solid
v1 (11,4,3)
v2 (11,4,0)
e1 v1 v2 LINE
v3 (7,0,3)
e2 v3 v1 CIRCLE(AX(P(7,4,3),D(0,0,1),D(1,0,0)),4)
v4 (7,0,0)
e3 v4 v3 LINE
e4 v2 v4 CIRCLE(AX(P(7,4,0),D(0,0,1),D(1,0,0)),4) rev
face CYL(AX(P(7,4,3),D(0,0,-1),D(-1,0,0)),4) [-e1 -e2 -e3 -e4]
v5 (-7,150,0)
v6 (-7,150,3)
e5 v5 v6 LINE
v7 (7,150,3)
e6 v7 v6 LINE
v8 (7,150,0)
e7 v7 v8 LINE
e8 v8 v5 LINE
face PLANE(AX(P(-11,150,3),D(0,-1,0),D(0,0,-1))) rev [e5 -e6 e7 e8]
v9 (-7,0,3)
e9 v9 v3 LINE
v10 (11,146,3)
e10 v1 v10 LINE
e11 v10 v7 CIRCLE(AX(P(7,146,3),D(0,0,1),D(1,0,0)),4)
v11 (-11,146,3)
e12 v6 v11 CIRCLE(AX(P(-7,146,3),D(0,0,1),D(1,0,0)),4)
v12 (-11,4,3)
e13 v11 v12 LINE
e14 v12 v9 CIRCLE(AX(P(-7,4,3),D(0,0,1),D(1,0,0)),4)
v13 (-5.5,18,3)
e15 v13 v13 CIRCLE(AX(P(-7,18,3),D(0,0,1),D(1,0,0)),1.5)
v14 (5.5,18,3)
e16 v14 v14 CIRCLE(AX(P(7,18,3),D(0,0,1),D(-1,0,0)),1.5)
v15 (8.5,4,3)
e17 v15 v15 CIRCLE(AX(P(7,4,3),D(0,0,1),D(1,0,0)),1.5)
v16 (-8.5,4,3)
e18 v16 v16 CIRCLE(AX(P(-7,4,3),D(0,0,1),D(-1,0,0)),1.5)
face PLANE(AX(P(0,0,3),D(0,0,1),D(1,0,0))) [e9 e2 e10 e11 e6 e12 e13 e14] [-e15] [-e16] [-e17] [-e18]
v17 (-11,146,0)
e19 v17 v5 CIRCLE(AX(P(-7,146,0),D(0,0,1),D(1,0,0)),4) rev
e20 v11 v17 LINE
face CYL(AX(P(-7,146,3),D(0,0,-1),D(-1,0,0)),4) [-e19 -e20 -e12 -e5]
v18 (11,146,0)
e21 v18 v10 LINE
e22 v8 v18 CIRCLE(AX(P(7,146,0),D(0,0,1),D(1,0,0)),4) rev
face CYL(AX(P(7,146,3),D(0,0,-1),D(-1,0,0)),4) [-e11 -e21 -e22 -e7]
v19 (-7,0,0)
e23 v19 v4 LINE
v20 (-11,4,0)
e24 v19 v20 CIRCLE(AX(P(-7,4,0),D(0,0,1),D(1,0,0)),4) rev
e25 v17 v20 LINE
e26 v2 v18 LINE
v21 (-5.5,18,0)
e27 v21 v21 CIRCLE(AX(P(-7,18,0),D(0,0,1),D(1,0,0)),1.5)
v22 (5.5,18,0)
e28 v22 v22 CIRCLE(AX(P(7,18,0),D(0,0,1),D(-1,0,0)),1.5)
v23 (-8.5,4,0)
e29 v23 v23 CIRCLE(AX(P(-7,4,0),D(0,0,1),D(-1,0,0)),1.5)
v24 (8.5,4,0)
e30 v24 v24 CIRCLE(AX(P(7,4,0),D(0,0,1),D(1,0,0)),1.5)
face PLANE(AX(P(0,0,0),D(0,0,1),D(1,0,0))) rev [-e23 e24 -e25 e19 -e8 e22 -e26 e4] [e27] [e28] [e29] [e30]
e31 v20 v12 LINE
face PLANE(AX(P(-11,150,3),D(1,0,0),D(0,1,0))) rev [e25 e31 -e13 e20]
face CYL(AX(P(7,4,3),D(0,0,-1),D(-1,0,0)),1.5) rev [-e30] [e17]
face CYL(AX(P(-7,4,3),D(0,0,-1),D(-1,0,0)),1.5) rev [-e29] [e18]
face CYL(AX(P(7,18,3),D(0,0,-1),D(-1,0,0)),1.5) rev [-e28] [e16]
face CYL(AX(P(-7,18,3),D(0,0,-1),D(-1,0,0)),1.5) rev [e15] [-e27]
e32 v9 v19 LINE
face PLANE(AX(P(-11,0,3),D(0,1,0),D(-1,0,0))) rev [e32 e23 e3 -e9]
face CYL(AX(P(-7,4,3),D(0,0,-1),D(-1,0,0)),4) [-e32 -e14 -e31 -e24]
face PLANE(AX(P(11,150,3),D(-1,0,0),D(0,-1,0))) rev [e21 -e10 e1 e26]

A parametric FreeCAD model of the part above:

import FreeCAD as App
import Part
import Sketcher
Q = App.Units.Quantity


def edges_at(feature, points):
    """Names of the edges that pass closest to the given points."""
    edges = feature.Shape.Edges
    near = lambda p: min(range(len(edges)), key=lambda i: edges[i].distToShape(Part.Vertex(*p))[0])
    return sorted({f"Edge{near(p) + 1}" for p in points})


def add_polygon(sketch, points):
    """Adds a closed chain of lines whose ends are joined by coincident constraints."""
    first, n = sketch.GeometryCount, len(points)
    for a, b in zip(points, points[1:] + points[:1]):
        sketch.addGeometry(Part.LineSegment(App.Vector(*a, 0), App.Vector(*b, 0)), False)
    for i in range(n):
        sketch.addConstraint(Sketcher.Constraint("Coincident", first + i, 2, first + (i + 1) % n, 1))

doc = App.newDocument("Part")
params = doc.addObject("Spreadsheet::Sheet", "Params")
for row, (alias, value) in enumerate([
    ("sketch1_diameter", "3 mm"),
    ("sketch1_width", "22 mm"),
    ("sketch1_height", "150 mm"),
    ("pad1_length", "3 mm"),
    ("fillet_radius", "4 mm"),
], start=1):
    params.set(f"A{row}", alias)
    params.set(f"B{row}", "=" + value)
    params.setAlias(f"B{row}", alias)

body = doc.addObject("PartDesign::Body", "Body")

# Sketch on XY plane
sketch1 = doc.addObject("Sketcher::SketchObject", "Sketch")
body.addObject(sketch1)
sketch1.AttachmentSupport = (doc.XY_Plane, [""])
sketch1.MapMode = "FlatFace"
add_polygon(sketch1, [(-11, 150), (-11, 0), (11, 0), (11, 150)])  # lines 0-3
sketch1.addGeometry(Part.Circle(App.Vector(-7, 4, 0), App.Vector(0, 0, 1), 1.5), False)  # 4
sketch1.addGeometry(Part.Circle(App.Vector(7, 4, 0), App.Vector(0, 0, 1), 1.5), False)  # 5
sketch1.addGeometry(Part.Circle(App.Vector(-7, 18, 0), App.Vector(0, 0, 1), 1.5), False)  # 6
sketch1.addGeometry(Part.Circle(App.Vector(7, 18, 0), App.Vector(0, 0, 1), 1.5), False)  # 7
sketch1.addConstraint(Sketcher.Constraint("Vertical", 0))
sketch1.addConstraint(Sketcher.Constraint("Horizontal", 1))
sketch1.addConstraint(Sketcher.Constraint("Vertical", 2))
sketch1.addConstraint(Sketcher.Constraint("Horizontal", 3))
sketch1.addConstraint(Sketcher.Constraint("Equal", 4, 5))
sketch1.addConstraint(Sketcher.Constraint("Equal", 5, 6))
sketch1.addConstraint(Sketcher.Constraint("Equal", 6, 7))
sketch1.addConstraint(Sketcher.Constraint("Symmetric", 0, 2, 1, 2, -1, 1))
sketch1.addConstraint(Sketcher.Constraint("Symmetric", 4, 3, 5, 3, -2))
sketch1.addConstraint(Sketcher.Constraint("Symmetric", 6, 3, 7, 3, -2))
sketch1.addConstraint(Sketcher.Constraint("Vertical", 4, 3, 6, 3))
sketch1.addConstraint(Sketcher.Constraint("Diameter", 4, Q("3 mm")))
sketch1.addConstraint(Sketcher.Constraint("DistanceX", 1, 1, 1, 2, Q("22 mm")))
sketch1.addConstraint(Sketcher.Constraint("DistanceY", 0, 2, 0, 1, Q("150 mm")))
sketch1.addConstraint(Sketcher.Constraint("DistanceX", 4, 3, -1, 1, Q("7 mm")))
sketch1.addConstraint(Sketcher.Constraint("DistanceY", -1, 1, 4, 3, Q("4 mm")))
sketch1.addConstraint(Sketcher.Constraint("DistanceY", -1, 1, 6, 3, Q("18 mm")))
sketch1.setExpression("Constraints[15]", "Params.sketch1_diameter")
sketch1.setExpression("Constraints[16]", "Params.sketch1_width")
sketch1.setExpression("Constraints[17]", "Params.sketch1_height")
pad1 = doc.addObject("PartDesign::Pad", "Pad")
body.addObject(pad1)
pad1.Profile = sketch1
pad1.setExpression("Length", "Params.pad1_length")
doc.recompute()

fillet = doc.addObject("PartDesign::Fillet", "Fillet")
body.addObject(fillet)
fillet.Base = (pad1, edges_at(pad1, [
    (-11, 150, 1.5),
    (11, 150, 1.5),
    (11, 0, 1.5),
    (-11, 0, 1.5),
]))
fillet.setExpression("Radius", "Params.fillet_radius")

doc.recompute()
